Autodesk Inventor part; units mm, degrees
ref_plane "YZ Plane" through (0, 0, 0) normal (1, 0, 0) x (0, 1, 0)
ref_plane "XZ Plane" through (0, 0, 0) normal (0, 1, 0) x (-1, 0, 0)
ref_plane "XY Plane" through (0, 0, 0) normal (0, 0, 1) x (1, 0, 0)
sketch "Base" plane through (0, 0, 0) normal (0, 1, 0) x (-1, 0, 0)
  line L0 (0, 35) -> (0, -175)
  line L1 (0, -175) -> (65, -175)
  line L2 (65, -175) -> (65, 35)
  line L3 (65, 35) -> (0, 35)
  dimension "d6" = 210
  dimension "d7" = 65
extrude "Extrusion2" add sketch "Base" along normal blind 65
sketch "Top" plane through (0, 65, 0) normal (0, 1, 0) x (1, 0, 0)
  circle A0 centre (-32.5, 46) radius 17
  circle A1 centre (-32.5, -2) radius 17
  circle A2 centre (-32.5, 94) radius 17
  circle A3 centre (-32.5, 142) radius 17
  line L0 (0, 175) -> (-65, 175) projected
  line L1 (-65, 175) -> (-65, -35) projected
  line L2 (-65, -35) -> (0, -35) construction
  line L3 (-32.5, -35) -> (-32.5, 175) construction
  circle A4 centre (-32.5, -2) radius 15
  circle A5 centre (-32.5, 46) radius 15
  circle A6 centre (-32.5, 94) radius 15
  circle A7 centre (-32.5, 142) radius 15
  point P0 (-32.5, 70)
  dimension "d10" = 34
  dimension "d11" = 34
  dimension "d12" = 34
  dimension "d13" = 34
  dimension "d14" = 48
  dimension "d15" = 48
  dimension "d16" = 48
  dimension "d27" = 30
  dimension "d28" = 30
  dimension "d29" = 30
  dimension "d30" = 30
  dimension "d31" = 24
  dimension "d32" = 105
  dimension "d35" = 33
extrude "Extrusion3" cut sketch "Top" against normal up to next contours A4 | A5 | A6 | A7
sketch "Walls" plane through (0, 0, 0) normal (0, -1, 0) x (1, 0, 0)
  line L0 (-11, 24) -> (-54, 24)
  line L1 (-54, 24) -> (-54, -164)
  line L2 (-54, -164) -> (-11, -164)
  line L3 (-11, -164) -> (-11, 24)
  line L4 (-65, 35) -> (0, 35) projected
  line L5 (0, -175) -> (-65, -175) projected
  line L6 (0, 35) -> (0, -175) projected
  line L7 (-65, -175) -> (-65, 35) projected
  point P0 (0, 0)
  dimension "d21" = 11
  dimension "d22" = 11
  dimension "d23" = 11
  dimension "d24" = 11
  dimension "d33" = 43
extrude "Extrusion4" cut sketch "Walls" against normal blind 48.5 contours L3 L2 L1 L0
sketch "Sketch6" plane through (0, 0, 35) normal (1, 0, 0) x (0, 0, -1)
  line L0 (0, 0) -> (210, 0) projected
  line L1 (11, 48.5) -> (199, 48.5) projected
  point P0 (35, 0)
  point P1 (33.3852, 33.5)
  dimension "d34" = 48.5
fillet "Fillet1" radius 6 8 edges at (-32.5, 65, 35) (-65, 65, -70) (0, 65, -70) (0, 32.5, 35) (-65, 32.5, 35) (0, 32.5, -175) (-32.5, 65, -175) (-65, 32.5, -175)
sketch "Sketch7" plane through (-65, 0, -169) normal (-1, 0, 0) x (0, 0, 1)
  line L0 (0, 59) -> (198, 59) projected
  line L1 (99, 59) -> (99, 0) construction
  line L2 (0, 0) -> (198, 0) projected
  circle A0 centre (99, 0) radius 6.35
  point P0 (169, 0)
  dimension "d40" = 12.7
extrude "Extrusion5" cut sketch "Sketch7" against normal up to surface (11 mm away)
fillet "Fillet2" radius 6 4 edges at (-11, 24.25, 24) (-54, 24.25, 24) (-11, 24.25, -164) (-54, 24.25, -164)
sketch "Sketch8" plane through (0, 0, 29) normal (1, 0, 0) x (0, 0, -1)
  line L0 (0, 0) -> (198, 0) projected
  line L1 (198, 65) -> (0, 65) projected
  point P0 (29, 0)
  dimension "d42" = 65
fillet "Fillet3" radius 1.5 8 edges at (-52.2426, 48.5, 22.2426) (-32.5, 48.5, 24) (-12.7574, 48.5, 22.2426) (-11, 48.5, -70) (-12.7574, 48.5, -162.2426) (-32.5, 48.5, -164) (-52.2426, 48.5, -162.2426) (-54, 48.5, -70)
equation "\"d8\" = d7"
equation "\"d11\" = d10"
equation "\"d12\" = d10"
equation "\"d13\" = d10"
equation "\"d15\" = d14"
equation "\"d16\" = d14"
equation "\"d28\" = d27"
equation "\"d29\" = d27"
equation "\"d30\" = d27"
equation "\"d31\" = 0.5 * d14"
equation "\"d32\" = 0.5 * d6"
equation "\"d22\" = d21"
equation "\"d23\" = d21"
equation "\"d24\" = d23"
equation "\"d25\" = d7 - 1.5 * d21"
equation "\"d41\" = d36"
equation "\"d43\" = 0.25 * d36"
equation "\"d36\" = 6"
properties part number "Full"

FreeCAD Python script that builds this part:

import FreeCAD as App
import Part
import Sketcher
from FreeCAD import Vector


def edges_at(feature, points):
    """Names of the edges that pass closest to the given points."""
    edges = feature.Shape.Edges
    near = lambda p: min(range(len(edges)), key=lambda i: edges[i].distToShape(Part.Vertex(*p))[0])
    return sorted({f"Edge{near(p) + 1}" for p in points})


def add_polygon(sketch, points):
    """Adds a closed chain of lines whose ends are joined by coincident constraints."""
    first, n = sketch.GeometryCount, len(points)
    for a, b in zip(points, points[1:] + points[:1]):
        sketch.addGeometry(Part.LineSegment(App.Vector(*a, 0), App.Vector(*b, 0)), False)
    for i in range(n):
        sketch.addConstraint(Sketcher.Constraint("Coincident", first + i, 2, first + (i + 1) % n, 1))

doc = App.newDocument("Part")
body = doc.addObject("PartDesign::Body", "Body")

# Sketch on XZ plane
sketch1 = doc.addObject("Sketcher::SketchObject", "Sketch")
body.addObject(sketch1)
sketch1.AttachmentSupport = (doc.XZ_Plane, [""])
sketch1.MapMode = "FlatFace"
add_polygon(sketch1, [(-65, 35), (0, 35), (0, -175), (-65, -175)])  # lines 0-3
sketch1.addConstraint([
    Sketcher.Constraint("Horizontal", 0),
    Sketcher.Constraint("Vertical", 1),
    Sketcher.Constraint("Horizontal", 2),
    Sketcher.Constraint("Vertical", 3),
    Sketcher.Constraint("PointOnObject", 0, 2, -2),
    Sketcher.Constraint("DistanceX", 0, 1, 0, 2, 65.0),
    Sketcher.Constraint("DistanceY", 1, 2, 1, 1, 210.0),
    Sketcher.Constraint("DistanceY", -1, 1, 0, 2, 35.0),
])
pad1 = doc.addObject("PartDesign::Pad", "Pad")
body.addObject(pad1)
pad1.Profile = sketch1
pad1.Length = 65
pad1.Reversed = True

# Sketch on XZ plane
sketch2 = doc.addObject("Sketcher::SketchObject", "Sketch001")
body.addObject(sketch2)
sketch2.AttachmentSupport = (doc.XZ_Plane, [""])
sketch2.MapMode = "FlatFace"
sketch2.AttachmentOffset = App.Placement(Vector(0, 0, -65), App.Rotation())
sketch2.addGeometry([
    Part.Circle(Vector(-32, 2, 0), Vector(0, 0, 1), 15),
    Part.Circle(Vector(-32, -46, 0), Vector(0, 0, 1), 15),
    Part.Circle(Vector(-32, -94, 0), Vector(0, 0, 1), 15),
    Part.Circle(Vector(-32, -142, 0), Vector(0, 0, 1), 15),
], False)
sketch2.addConstraint([
    Sketcher.Constraint("Equal", 0, 1),
    Sketcher.Constraint("Equal", 1, 2),
    Sketcher.Constraint("Equal", 2, 3),
    Sketcher.Constraint("Vertical", 0, 3, 1, 3),
    Sketcher.Constraint("Vertical", 1, 3, 2, 3),
    Sketcher.Constraint("Vertical", 2, 3, 3, 3),
    Sketcher.Constraint("Diameter", 0, 30.0),
    Sketcher.Constraint("DistanceY", 1, 3, 0, 3, 48.0),
    Sketcher.Constraint("DistanceY", 2, 3, 1, 3, 48.0),
    Sketcher.Constraint("DistanceY", 3, 3, 2, 3, 48.0),
    Sketcher.Constraint("DistanceY", -1, 1, 0, 3, 2.0),
    Sketcher.Constraint("DistanceX", 0, 3, -1, 1, 32.5),
])
pocket1 = doc.addObject("PartDesign::Pocket", "Pocket")
body.addObject(pocket1)
pocket1.Profile = sketch2
pocket1.Type = "UpToFirst"
pocket1.Reversed = True

# Sketch on XZ plane
sketch3 = doc.addObject("Sketcher::SketchObject", "Sketch002")
body.addObject(sketch3)
sketch3.AttachmentSupport = (doc.XZ_Plane, [""])
sketch3.MapMode = "FlatFace"
add_polygon(sketch3, [(-11, -164), (-11, 24), (-54, 24), (-54, -164)])  # lines 0-3
sketch3.addConstraint([
    Sketcher.Constraint("Vertical", 0),
    Sketcher.Constraint("Horizontal", 1),
    Sketcher.Constraint("Vertical", 2),
    Sketcher.Constraint("Horizontal", 3),
    Sketcher.Constraint("DistanceX", 1, 2, 1, 1, 43.0),
    Sketcher.Constraint("DistanceX", 0, 2, -1, 1, 11.0),
    Sketcher.Constraint("DistanceY", 0, 1, 0, 2, 188.0),
    Sketcher.Constraint("DistanceY", -1, 1, 0, 2, 24.0),
])
pocket2 = doc.addObject("PartDesign::Pocket", "Pocket001")
body.addObject(pocket2)
pocket2.Profile = sketch3
pocket2.Length = 48.5
doc.recompute()

fillet = doc.addObject("PartDesign::Fillet", "Fillet")
body.addObject(fillet)
fillet.Base = (pocket2, edges_at(pocket2, [
    (-32.5, 65, 35),
    (-65, 65, -70),
    (0, 65, -70),
    (0, 32.5, 35),
    (-65, 32.5, 35),
    (0, 32.5, -175),
    (-32.5, 65, -175),
    (-65, 32.5, -175),
]))
fillet.Radius = 6

# Sketch on YZ plane
sketch4 = doc.addObject("Sketcher::SketchObject", "Sketch003")
body.addObject(sketch4)
sketch4.AttachmentSupport = (doc.YZ_Plane, [""])
sketch4.MapMode = "FlatFace"
sketch4.AttachmentOffset = App.Placement(Vector(0, 0, -65), App.Rotation())
sketch4.addGeometry(Part.Circle(Vector(0, -70, 0), Vector(0, 0, 1), 6), False)
sketch4.addConstraint([
    Sketcher.Constraint("PointOnObject", 0, 3, -2),
    Sketcher.Constraint("Diameter", 0, 12.7),
    Sketcher.Constraint("DistanceY", 0, 3, -1, 1, 70.0),
])
pocket3 = doc.addObject("PartDesign::Pocket", "Pocket002")
body.addObject(pocket3)
pocket3.Profile = sketch4
pocket3.Length = 11
pocket3.Reversed = True
doc.recompute()

fillet2 = doc.addObject("PartDesign::Fillet", "Fillet001")
body.addObject(fillet2)
fillet2.Base = (pocket3, edges_at(pocket3, [
    (-11, 24.25, 24),
    (-54, 24.25, 24),
    (-11, 24.25, -164),
    (-54, 24.25, -164),
]))
fillet2.Radius = 6
doc.recompute()

fillet3 = doc.addObject("PartDesign::Fillet", "Fillet002")
body.addObject(fillet3)
fillet3.Base = (fillet2, edges_at(fillet2, [
    (-52.243, 48.5, 22.243),
    (-32.5, 48.5, 24),
    (-12.757, 48.5, 22.243),
    (-11, 48.5, -70),
    (-12.757, 48.5, -162.243),
    (-32.5, 48.5, -164),
    (-52.243, 48.5, -162.243),
    (-54, 48.5, -70),
]))
fillet3.Radius = 1.5

doc.recompute()
